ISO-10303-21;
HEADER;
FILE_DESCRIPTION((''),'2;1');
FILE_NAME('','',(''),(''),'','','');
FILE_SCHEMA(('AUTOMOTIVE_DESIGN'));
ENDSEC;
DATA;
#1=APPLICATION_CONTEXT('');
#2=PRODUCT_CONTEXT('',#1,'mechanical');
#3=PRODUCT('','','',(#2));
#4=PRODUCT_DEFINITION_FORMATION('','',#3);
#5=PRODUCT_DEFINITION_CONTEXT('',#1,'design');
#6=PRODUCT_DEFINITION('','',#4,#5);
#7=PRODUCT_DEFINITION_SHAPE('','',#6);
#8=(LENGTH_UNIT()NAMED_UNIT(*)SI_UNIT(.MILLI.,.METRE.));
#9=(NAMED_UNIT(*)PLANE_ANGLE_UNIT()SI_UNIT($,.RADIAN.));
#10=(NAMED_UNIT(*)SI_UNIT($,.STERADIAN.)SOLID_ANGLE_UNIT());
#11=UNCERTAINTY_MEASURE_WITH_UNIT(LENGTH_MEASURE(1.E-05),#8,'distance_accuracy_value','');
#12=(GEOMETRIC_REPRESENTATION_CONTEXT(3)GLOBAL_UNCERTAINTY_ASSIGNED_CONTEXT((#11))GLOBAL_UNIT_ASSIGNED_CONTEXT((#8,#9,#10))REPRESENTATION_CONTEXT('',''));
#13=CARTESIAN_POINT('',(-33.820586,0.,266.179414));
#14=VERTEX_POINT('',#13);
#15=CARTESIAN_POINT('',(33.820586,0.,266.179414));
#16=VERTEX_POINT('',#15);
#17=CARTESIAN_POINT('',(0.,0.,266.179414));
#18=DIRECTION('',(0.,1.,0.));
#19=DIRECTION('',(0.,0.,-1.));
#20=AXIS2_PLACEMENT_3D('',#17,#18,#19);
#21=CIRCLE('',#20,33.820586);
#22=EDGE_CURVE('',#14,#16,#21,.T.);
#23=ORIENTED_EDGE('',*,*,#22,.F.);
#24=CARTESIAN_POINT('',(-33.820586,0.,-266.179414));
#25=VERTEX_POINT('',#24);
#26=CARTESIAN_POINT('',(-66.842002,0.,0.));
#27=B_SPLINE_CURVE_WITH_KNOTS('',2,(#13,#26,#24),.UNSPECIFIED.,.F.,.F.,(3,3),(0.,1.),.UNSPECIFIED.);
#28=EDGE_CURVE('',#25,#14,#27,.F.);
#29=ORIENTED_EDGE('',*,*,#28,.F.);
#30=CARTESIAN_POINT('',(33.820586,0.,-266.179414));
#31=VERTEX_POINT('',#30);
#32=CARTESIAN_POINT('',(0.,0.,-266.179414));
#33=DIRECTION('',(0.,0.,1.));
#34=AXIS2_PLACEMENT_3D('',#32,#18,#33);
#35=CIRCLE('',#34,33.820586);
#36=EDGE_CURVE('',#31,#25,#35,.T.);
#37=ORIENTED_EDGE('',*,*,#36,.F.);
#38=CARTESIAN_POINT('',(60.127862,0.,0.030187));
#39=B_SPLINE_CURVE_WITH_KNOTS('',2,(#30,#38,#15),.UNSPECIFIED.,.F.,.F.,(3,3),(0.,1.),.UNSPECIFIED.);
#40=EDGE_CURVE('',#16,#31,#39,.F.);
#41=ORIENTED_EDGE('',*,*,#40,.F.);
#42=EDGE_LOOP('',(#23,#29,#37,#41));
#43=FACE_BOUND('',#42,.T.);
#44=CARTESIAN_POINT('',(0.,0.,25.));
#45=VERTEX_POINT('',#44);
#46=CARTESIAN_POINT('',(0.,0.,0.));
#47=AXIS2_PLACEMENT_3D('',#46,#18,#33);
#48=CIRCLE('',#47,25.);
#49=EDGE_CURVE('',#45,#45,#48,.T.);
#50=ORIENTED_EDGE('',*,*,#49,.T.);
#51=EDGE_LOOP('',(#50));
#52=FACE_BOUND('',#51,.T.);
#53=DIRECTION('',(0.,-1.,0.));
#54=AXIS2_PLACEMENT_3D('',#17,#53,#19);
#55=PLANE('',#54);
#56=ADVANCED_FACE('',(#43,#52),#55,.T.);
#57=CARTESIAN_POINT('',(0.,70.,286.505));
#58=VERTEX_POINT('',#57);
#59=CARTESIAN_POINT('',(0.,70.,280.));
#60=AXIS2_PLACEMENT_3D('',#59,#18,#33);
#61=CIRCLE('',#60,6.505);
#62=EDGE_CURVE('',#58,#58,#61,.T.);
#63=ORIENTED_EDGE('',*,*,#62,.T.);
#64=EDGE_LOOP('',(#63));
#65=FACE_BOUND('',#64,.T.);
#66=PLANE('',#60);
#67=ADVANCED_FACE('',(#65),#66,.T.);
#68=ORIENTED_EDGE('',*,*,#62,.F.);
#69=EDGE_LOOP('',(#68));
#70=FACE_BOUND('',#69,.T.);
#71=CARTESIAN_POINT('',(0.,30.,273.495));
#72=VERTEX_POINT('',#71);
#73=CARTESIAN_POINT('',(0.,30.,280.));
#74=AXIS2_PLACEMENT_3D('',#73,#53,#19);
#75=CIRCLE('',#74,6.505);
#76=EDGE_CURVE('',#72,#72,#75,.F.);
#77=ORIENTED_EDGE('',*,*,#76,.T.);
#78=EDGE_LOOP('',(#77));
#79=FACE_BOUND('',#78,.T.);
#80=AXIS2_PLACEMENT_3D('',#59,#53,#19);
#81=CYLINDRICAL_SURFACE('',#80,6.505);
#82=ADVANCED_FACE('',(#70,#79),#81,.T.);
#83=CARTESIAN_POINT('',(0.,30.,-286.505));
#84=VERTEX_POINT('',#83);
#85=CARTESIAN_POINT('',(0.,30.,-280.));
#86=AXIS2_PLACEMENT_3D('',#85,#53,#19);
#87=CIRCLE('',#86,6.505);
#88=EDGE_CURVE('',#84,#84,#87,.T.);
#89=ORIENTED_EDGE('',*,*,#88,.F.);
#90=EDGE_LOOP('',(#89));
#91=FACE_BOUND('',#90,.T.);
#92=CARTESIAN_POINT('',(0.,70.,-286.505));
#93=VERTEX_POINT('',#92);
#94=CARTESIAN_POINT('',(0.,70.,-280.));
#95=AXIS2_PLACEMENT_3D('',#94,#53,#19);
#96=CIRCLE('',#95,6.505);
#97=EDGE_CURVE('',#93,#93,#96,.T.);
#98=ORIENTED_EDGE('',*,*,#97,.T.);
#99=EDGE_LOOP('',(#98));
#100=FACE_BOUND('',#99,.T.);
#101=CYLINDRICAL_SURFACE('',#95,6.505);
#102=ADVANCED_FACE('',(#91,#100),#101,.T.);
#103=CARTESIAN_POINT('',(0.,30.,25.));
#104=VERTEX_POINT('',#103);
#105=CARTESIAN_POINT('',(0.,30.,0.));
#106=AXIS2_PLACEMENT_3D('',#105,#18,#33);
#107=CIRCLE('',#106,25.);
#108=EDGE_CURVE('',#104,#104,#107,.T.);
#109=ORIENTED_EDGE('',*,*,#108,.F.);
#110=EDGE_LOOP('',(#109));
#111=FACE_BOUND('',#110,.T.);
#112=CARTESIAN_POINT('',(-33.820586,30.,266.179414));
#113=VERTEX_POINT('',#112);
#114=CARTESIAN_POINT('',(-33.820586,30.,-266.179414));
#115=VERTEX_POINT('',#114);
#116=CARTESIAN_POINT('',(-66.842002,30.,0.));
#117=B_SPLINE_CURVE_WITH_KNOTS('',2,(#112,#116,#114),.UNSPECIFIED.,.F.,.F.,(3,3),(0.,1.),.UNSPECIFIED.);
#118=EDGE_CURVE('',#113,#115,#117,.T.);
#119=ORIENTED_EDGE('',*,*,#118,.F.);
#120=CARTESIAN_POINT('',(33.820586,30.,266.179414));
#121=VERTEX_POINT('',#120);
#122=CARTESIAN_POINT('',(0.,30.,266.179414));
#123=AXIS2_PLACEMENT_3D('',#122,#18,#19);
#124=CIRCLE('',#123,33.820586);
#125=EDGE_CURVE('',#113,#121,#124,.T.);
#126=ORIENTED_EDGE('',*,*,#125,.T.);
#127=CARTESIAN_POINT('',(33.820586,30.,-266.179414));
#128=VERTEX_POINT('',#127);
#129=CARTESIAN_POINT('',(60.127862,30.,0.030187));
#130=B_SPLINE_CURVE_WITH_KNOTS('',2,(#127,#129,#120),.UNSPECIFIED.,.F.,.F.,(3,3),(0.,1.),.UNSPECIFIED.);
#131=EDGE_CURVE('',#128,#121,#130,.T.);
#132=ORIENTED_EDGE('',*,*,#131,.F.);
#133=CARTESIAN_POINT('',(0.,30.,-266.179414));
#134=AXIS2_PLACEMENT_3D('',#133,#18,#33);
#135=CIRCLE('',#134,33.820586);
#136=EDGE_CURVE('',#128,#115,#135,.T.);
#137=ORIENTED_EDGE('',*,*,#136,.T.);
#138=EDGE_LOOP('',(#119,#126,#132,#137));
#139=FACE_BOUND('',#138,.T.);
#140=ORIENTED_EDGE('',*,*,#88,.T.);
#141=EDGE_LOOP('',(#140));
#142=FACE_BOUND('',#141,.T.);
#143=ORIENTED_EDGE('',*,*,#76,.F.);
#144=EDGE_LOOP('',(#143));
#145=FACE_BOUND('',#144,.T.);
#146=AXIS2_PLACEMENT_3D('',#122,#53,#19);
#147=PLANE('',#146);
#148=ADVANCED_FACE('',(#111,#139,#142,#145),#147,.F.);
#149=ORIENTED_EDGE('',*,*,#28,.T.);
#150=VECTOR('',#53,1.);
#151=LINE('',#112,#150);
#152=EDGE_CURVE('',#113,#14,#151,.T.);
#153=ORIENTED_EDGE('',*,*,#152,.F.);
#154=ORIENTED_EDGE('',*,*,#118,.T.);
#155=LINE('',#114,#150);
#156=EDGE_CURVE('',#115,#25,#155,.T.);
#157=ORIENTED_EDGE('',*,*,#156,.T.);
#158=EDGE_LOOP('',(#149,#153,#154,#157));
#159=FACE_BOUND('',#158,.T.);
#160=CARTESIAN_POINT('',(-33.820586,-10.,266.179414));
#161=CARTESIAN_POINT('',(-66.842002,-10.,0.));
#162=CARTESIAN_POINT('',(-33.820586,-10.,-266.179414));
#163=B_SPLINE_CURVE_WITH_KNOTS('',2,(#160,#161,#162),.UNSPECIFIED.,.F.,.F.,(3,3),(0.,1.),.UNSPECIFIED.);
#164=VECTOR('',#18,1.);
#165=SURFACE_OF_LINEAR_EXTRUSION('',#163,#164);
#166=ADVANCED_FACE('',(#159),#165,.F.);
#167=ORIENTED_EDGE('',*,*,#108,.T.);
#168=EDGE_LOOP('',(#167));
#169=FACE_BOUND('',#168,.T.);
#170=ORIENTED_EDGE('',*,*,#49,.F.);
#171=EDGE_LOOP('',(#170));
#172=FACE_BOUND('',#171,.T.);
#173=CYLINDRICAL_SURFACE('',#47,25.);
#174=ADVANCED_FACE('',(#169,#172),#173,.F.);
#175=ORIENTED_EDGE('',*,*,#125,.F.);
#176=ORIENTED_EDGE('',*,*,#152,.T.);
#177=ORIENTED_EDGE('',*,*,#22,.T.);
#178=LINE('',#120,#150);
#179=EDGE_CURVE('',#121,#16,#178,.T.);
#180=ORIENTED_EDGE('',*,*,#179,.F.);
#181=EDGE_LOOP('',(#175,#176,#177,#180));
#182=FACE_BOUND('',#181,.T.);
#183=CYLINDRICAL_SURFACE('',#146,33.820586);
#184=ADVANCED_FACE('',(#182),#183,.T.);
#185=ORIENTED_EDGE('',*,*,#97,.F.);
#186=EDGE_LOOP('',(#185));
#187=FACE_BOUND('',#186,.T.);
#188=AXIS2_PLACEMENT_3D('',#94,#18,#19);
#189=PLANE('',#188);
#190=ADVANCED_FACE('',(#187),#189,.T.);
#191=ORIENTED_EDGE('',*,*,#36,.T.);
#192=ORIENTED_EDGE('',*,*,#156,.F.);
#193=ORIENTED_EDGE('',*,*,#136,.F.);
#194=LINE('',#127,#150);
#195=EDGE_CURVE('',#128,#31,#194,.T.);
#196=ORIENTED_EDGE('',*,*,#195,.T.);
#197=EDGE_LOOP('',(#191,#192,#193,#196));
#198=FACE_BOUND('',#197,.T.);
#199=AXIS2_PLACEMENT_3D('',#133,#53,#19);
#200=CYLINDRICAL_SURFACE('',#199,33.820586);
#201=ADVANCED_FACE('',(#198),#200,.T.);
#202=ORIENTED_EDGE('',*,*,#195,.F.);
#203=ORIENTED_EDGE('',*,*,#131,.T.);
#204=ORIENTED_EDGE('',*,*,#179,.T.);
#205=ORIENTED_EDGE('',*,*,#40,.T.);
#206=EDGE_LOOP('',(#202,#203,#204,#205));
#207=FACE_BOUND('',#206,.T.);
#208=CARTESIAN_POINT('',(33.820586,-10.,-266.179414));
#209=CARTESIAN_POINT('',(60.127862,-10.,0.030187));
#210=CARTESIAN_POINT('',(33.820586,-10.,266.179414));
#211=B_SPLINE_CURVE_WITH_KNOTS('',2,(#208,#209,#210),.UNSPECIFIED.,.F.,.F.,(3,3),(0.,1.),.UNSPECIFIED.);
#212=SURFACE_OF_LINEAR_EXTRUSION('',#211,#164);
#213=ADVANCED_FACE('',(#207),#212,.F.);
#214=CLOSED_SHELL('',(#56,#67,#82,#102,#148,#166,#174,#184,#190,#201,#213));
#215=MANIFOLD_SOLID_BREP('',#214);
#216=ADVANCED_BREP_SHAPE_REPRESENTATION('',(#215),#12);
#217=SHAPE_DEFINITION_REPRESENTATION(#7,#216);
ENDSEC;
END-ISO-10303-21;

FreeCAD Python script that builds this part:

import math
import FreeCAD as App
import Part
import Sketcher
Q = App.Units.Quantity

doc = App.newDocument("Part")
body = doc.addObject("PartDesign::Body", "Body")

# Sketch on XZ plane
sketch1 = body.newObject("Sketcher::SketchObject", "Sketch")
sketch1.AttachmentSupport = (doc.getObject("XZ_Plane"), [""])
sketch1.MapMode = "FlatFace"
sketch1.addGeometry(Part.LineSegment(App.Vector(-34, -266, 0), App.Vector(-78, 0, 0)), False)
sketch1.addGeometry(Part.LineSegment(App.Vector(-78, 0, 0), App.Vector(-34, 266, 0)), False)
sketch1.addGeometry(Part.ArcOfCircle(Part.Circle(App.Vector(0, 266, 0), App.Vector(0, 0, 1), 34), math.radians(0), math.radians(180)), False)
sketch1.addGeometry(Part.LineSegment(App.Vector(34, 266, 0), App.Vector(72, 0, 0)), False)
sketch1.addGeometry(Part.LineSegment(App.Vector(72, 0, 0), App.Vector(34, -266, 0)), False)
sketch1.addGeometry(Part.ArcOfCircle(Part.Circle(App.Vector(0, -266, 0), App.Vector(0, 0, 1), 34), math.radians(180), math.radians(360)), False)
sketch1.addConstraint(Sketcher.Constraint("Coincident", 0, 2, 1, 1))
sketch1.addConstraint(Sketcher.Constraint("Coincident", 1, 2, 2, 2))
sketch1.addConstraint(Sketcher.Constraint("Coincident", 2, 1, 3, 1))
sketch1.addConstraint(Sketcher.Constraint("Coincident", 3, 2, 4, 1))
sketch1.addConstraint(Sketcher.Constraint("Coincident", 4, 2, 5, 2))
sketch1.addConstraint(Sketcher.Constraint("Coincident", 5, 1, 0, 1))
sketch1.addConstraint(Sketcher.Constraint("Equal", 2, 5))
sketch1.addConstraint(Sketcher.Constraint("Symmetric", 2, 3, 5, 3, -1, 1))
sketch1.addConstraint(Sketcher.Constraint("Symmetric", 1, 2, 2, 1, -2))
sketch1.addConstraint(Sketcher.Constraint("PointOnObject", 0, 2, -1))
sketch1.addConstraint(Sketcher.Constraint("PointOnObject", 3, 2, -1))
sketch1.addConstraint(Sketcher.Constraint("Horizontal", 2, 3, 1, 2))
sketch1.addConstraint(Sketcher.Constraint("Horizontal", 5, 3, 4, 2))
sketch1.addConstraint(Sketcher.Constraint("Horizontal", 4, 2, 5, 1))
sketch1.addConstraint(Sketcher.Constraint("Radius", 2, Q("33.820586 mm")))
sketch1.addConstraint(Sketcher.Constraint("Distance", 0, Q("269.758588 mm")))
sketch1.addConstraint(Sketcher.Constraint("DistanceX", -1, 1, 3, 2, Q("72.176611 mm")))
sketch1.addConstraint(Sketcher.Constraint("DistanceX", 0, 2, 2, 1, Q("111.438609 mm")))
pad1 = body.newObject("PartDesign::Pad", "Pad")
pad1.Profile = sketch1
pad1.Length = 30
pad1.Reversed = True

# Sketch on XZ plane
sketch2 = body.newObject("Sketcher::SketchObject", "Sketch001")
sketch2.AttachmentSupport = (doc.getObject("XZ_Plane"), [""])
sketch2.MapMode = "FlatFace"
sketch2.AttachmentOffset = App.Placement(App.Vector(0, 0, -30), App.Rotation())
sketch2.addGeometry(Part.Circle(App.Vector(0, 0, 0), App.Vector(0, 0, 1), 25), False)
sketch2.addConstraint(Sketcher.Constraint("Coincident", 0, 3, -1, 1))
sketch2.addConstraint(Sketcher.Constraint("Diameter", 0, Q("50 mm")))
pocket1 = body.newObject("PartDesign::Pocket", "Pocket")
pocket1.Profile = sketch2
pocket1.Length = 30
pocket1.Reversed = True

# Sketch on XZ plane
sketch3 = body.newObject("Sketcher::SketchObject", "Sketch002")
sketch3.AttachmentSupport = (doc.getObject("XZ_Plane"), [""])
sketch3.MapMode = "FlatFace"
sketch3.AttachmentOffset = App.Placement(App.Vector(0, 0, -30), App.Rotation())
sketch3.addGeometry(Part.Circle(App.Vector(0, 280, 0), App.Vector(0, 0, 1), 7), False)
sketch3.addConstraint(Sketcher.Constraint("PointOnObject", 0, 3, -2))
sketch3.addConstraint(Sketcher.Constraint("Diameter", 0, Q("13.01 mm")))
sketch3.addConstraint(Sketcher.Constraint("DistanceY", -1, 1, 0, 3, Q("280 mm")))
pad2 = body.newObject("PartDesign::Pad", "Pad001")
pad2.Profile = sketch3
pad2.Length = 40
pad2.Reversed = True
doc.recompute()

mirrored = body.newObject("PartDesign::Mirrored", "Mirrored")
mirrored.Originals = [pad2]
mirrored.MirrorPlane = (doc.getObject("XY_Plane"), [""])
body.Tip = mirrored

# Sketch on XZ plane
sketch4 = body.newObject("Sketcher::SketchObject", "Sketch003")
sketch4.AttachmentSupport = (doc.getObject("XZ_Plane"), [""])
sketch4.MapMode = "FlatFace"
sketch4.AttachmentOffset = App.Placement(App.Vector(0, 0, -30), App.Rotation())
sketch4.addGeometry(Part.LineSegment(App.Vector(-77.618023, 0, 0), App.Vector(-33.820586, 266.179414, 0)), False)
sketch4.addGeometry(Part.BSplineCurve([App.Vector(-33.820586, -266.179414, 0), App.Vector(-66.842002, 0, 0), App.Vector(-33.820586, 266.179414, 0)], [3, 3], [0, 1], False, 2, [1, 1, 1], False), False)
sketch4.addGeometry(Part.BSplineCurve([App.Vector(-33.820586, -266.179414, 0), App.Vector(-77.618023, 0, 0)], [2, 2], [0, 1], False, 1, [1, 1], False), False)
sketch4.addGeometry(Part.LineSegment(App.Vector(72.176611, 0, 0), App.Vector(33.820586, -266.179414, 0)), False)
sketch4.addGeometry(Part.BSplineCurve([App.Vector(33.820586, -266.179414, 0), App.Vector(60.127862, 0.030187, 0), App.Vector(33.820586, 266.179414, 0)], [3, 3], [0, 1], False, 2, [1, 1, 1], False), False)
sketch4.addGeometry(Part.LineSegment(App.Vector(33.820586, 266.179414, 0), App.Vector(72.176611, 0, 0)), False)
sketch4.addConstraint(Sketcher.Constraint("Block", 1))
sketch4.addConstraint(Sketcher.Constraint("Block", 2))
sketch4.addConstraint(Sketcher.Constraint("Block", 4))
sketch4.addConstraint(Sketcher.Constraint("Coincident", 0, 2, 1, 2))
sketch4.addConstraint(Sketcher.Constraint("Coincident", 2, 2, 0, 1))
sketch4.addConstraint(Sketcher.Constraint("Coincident", 3, 2, 4, 1))
sketch4.addConstraint(Sketcher.Constraint("Coincident", 4, 2, 5, 1))
sketch4.addConstraint(Sketcher.Constraint("Coincident", 5, 2, 3, 1))
sketch4.addConstraint(Sketcher.Constraint("PointOnObject", 5, 2, -1))
sketch4.addConstraint(Sketcher.Constraint("DistanceX", -1, 1, 5, 2, Q("72.176611 mm")))
pocket2 = body.newObject("PartDesign::Pocket", "Pocket001")
pocket2.Profile = sketch4
pocket2.Length = 40
pocket2.Reversed = True

doc.recompute()
